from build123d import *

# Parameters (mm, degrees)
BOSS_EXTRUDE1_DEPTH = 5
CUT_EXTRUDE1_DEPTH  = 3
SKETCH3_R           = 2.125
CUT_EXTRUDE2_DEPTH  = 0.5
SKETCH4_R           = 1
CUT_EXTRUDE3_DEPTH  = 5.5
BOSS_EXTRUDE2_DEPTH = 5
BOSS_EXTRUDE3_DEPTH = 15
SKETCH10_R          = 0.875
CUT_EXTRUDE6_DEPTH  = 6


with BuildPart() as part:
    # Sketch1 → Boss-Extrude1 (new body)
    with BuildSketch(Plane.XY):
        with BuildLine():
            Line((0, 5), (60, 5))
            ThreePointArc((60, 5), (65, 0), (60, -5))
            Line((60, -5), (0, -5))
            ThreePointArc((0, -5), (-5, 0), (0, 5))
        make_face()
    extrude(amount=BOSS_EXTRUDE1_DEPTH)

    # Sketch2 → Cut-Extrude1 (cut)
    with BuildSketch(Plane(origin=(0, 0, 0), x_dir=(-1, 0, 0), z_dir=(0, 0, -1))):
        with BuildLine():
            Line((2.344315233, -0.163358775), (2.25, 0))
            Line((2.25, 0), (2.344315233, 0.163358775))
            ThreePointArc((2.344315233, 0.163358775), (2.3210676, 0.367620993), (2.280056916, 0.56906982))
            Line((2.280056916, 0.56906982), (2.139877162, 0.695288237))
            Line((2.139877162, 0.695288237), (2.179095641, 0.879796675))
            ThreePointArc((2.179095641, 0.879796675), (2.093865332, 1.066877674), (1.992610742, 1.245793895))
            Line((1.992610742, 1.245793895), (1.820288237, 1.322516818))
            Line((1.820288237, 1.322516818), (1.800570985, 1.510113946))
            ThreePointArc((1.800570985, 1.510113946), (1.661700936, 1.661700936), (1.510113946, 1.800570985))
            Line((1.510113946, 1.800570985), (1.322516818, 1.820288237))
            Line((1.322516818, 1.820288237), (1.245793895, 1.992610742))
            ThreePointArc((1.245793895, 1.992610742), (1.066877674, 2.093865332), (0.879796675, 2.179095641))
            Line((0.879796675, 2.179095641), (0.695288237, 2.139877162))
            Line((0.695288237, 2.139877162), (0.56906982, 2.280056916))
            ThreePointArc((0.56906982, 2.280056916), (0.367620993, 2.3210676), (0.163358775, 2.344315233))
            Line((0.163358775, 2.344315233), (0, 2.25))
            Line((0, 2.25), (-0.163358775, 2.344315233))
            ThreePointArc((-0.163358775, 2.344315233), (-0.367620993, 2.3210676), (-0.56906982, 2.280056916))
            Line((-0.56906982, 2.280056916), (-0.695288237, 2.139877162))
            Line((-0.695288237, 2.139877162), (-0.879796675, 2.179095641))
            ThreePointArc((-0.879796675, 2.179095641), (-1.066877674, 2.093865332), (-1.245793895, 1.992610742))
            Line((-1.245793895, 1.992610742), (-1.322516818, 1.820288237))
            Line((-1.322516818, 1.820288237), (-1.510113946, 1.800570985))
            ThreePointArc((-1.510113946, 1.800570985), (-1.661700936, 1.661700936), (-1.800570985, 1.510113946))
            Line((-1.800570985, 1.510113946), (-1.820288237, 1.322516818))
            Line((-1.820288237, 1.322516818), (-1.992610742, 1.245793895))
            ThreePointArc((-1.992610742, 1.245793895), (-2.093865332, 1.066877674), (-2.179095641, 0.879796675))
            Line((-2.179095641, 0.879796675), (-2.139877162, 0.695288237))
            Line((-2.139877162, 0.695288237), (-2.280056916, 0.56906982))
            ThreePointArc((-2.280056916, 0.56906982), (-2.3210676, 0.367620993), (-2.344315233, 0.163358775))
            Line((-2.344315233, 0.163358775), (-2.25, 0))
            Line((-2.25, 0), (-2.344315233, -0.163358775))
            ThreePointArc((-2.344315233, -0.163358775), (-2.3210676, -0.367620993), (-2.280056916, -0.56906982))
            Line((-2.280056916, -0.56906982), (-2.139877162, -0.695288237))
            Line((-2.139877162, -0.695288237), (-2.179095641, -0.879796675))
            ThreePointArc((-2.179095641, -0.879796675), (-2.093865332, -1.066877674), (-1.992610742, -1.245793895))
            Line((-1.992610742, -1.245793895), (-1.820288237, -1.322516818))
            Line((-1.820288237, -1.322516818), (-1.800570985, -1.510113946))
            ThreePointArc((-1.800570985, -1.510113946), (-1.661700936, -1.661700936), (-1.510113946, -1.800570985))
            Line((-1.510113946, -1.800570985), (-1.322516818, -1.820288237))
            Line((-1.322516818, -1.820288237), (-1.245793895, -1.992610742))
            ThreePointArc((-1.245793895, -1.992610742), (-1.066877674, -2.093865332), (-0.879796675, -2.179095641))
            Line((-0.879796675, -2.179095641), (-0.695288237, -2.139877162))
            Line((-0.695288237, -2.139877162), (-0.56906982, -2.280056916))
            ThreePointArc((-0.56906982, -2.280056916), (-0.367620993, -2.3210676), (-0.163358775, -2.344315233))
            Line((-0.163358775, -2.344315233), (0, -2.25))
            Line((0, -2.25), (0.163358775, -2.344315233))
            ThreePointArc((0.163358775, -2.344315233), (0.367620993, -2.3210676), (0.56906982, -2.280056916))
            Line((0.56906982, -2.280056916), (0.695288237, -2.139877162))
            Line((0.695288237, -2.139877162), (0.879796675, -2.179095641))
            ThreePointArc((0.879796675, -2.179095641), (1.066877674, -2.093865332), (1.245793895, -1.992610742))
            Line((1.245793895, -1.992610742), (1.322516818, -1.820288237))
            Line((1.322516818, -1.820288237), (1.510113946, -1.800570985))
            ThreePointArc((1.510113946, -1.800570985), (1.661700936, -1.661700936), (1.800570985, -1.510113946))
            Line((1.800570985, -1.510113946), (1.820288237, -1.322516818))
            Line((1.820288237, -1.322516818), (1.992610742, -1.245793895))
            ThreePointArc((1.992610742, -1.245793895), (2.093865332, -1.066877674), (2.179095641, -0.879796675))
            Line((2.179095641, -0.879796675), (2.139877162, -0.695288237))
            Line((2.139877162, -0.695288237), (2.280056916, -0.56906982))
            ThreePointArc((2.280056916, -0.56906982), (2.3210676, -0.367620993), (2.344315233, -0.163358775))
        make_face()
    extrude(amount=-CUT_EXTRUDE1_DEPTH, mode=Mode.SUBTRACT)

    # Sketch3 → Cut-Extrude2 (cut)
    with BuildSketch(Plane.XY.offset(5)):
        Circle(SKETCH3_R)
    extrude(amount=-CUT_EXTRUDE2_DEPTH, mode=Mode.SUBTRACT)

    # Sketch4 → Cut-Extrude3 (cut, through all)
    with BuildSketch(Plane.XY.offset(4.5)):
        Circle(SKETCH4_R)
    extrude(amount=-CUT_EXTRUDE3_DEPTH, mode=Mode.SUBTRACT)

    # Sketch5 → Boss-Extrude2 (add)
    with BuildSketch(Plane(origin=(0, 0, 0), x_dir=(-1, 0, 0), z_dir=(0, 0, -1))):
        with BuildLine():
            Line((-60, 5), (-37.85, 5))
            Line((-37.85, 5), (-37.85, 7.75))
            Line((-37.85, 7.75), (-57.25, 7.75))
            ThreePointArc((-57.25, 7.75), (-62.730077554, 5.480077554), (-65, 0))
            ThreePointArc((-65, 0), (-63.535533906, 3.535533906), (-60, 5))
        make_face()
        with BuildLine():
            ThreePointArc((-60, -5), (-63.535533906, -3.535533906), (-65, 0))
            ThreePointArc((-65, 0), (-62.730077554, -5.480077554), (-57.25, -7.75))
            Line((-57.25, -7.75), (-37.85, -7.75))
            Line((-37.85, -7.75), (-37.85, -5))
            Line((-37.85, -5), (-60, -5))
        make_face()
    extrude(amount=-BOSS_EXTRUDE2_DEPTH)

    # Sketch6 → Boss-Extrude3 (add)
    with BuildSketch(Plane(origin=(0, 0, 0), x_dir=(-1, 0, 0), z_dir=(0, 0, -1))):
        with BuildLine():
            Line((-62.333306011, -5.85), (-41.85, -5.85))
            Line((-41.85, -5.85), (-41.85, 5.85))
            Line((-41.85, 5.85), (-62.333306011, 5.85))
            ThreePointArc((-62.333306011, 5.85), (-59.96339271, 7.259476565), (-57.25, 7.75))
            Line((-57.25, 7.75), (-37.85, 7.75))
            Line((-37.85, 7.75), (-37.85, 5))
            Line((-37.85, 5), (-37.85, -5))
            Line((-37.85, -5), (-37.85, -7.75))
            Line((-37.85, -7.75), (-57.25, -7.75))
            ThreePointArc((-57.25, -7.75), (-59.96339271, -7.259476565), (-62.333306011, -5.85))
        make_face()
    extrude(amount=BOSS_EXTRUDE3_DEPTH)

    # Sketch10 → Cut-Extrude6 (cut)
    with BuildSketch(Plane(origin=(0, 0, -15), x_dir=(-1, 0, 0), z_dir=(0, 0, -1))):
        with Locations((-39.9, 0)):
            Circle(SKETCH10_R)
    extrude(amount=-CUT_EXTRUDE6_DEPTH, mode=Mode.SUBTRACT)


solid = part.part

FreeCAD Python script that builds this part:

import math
import FreeCAD as App
import Part
import Sketcher
from FreeCAD import Vector
Q = App.Units.Quantity

doc = App.newDocument("Part")
body = doc.addObject("PartDesign::Body", "Body")

# Sketch on XY plane
sketch1 = body.newObject("Sketcher::SketchObject", "Sketch")
sketch1.AttachmentSupport = (doc.getObject("XY_Plane"), [""])
sketch1.MapMode = "FlatFace"
sketch1.addGeometry(Part.LineSegment(Vector(60, 5, 0), Vector(0, 5, 0)), False)
sketch1.addGeometry(Part.ArcOfCircle(Part.Circle(Vector(0, 0, 0), Vector(0, 0, 1), 5), math.radians(90), math.radians(270)), False)
sketch1.addGeometry(Part.LineSegment(Vector(0, -5, 0), Vector(60, -5, 0)), False)
sketch1.addGeometry(Part.ArcOfCircle(Part.Circle(Vector(60, 0, 0), Vector(0, 0, 1), 5), math.radians(-90), math.radians(90)), False)
sketch1.addConstraint(Sketcher.Constraint("Tangent", 0, 2, 1, 1))
sketch1.addConstraint(Sketcher.Constraint("Tangent", 1, 2, 2, 1))
sketch1.addConstraint(Sketcher.Constraint("Tangent", 2, 2, 3, 1))
sketch1.addConstraint(Sketcher.Constraint("Tangent", 3, 2, 0, 1))
sketch1.addConstraint(Sketcher.Constraint("Horizontal", 0))
sketch1.addConstraint(Sketcher.Constraint("Horizontal", 2))
sketch1.addConstraint(Sketcher.Constraint("Coincident", 1, 3, -1, 1))
sketch1.addConstraint(Sketcher.Constraint("Radius", 1, Q("5 mm")))
sketch1.addConstraint(Sketcher.Constraint("DistanceX", 0, 2, 0, 1, Q("60 mm")))
pad1 = body.newObject("PartDesign::Pad", "Pad")
pad1.Profile = sketch1
pad1.Length = 5

# Sketch on XY plane
sketch2 = body.newObject("Sketcher::SketchObject", "Sketch001")
sketch2.AttachmentSupport = (doc.getObject("XY_Plane"), [""])
sketch2.MapMode = "FlatFace"
sketch2.addGeometry(Part.LineSegment(Vector(-2.34, -0.16, 0), Vector(-2.25, 0, 0)), False)
sketch2.addGeometry(Part.LineSegment(Vector(-2.25, 0, 0), Vector(-2.34, 0.16, 0)), False)
sketch2.addGeometry(Part.ArcOfCircle(Part.Circle(Vector(0, 0, 0), Vector(0, 0, 1), 2.35), math.radians(165.99), math.radians(176.01)), False)
sketch2.addGeometry(Part.LineSegment(Vector(-2.28, 0.57, 0), Vector(-2.14, 0.7, 0)), False)
sketch2.addGeometry(Part.LineSegment(Vector(-2.14, 0.7, 0), Vector(-2.18, 0.88, 0)), False)
sketch2.addGeometry(Part.ArcOfCircle(Part.Circle(Vector(0, 0, 0), Vector(0, 0, 1), 2.35), math.radians(147.99), math.radians(158.01)), False)
sketch2.addGeometry(Part.LineSegment(Vector(-1.99, 1.25, 0), Vector(-1.82, 1.32, 0)), False)
sketch2.addGeometry(Part.LineSegment(Vector(-1.82, 1.32, 0), Vector(-1.8, 1.51, 0)), False)
sketch2.addGeometry(Part.ArcOfCircle(Part.Circle(Vector(0, 0, 0), Vector(0, 0, 1), 2.35), math.radians(129.99), math.radians(140.01)), False)
sketch2.addGeometry(Part.LineSegment(Vector(-1.51, 1.8, 0), Vector(-1.32, 1.82, 0)), False)
sketch2.addGeometry(Part.LineSegment(Vector(-1.32, 1.82, 0), Vector(-1.25, 1.99, 0)), False)
sketch2.addGeometry(Part.ArcOfCircle(Part.Circle(Vector(0, 0, 0), Vector(0, 0, 1), 2.35), math.radians(111.99), math.radians(122.01)), False)
sketch2.addGeometry(Part.LineSegment(Vector(-0.88, 2.18, 0), Vector(-0.7, 2.14, 0)), False)
sketch2.addGeometry(Part.LineSegment(Vector(-0.7, 2.14, 0), Vector(-0.57, 2.28, 0)), False)
sketch2.addGeometry(Part.ArcOfCircle(Part.Circle(Vector(0, 0, 0), Vector(0, 0, 1), 2.35), math.radians(93.99), math.radians(104.01)), False)
sketch2.addGeometry(Part.LineSegment(Vector(-0.16, 2.34, 0), Vector(0, 2.25, 0)), False)
sketch2.addGeometry(Part.LineSegment(Vector(0, 2.25, 0), Vector(0.16, 2.34, 0)), False)
sketch2.addGeometry(Part.ArcOfCircle(Part.Circle(Vector(0, 0, 0), Vector(0, 0, 1), 2.35), math.radians(75.99), math.radians(86.01)), False)
sketch2.addGeometry(Part.LineSegment(Vector(0.57, 2.28, 0), Vector(0.7, 2.14, 0)), False)
sketch2.addGeometry(Part.LineSegment(Vector(0.7, 2.14, 0), Vector(0.88, 2.18, 0)), False)
sketch2.addGeometry(Part.ArcOfCircle(Part.Circle(Vector(0, 0, 0), Vector(0, 0, 1), 2.35), math.radians(57.99), math.radians(68.01)), False)
sketch2.addGeometry(Part.LineSegment(Vector(1.25, 1.99, 0), Vector(1.32, 1.82, 0)), False)
sketch2.addGeometry(Part.LineSegment(Vector(1.32, 1.82, 0), Vector(1.51, 1.8, 0)), False)
sketch2.addGeometry(Part.ArcOfCircle(Part.Circle(Vector(0, 0, 0), Vector(0, 0, 1), 2.35), math.radians(39.99), math.radians(50.01)), False)
sketch2.addGeometry(Part.LineSegment(Vector(1.8, 1.51, 0), Vector(1.82, 1.32, 0)), False)
sketch2.addGeometry(Part.LineSegment(Vector(1.82, 1.32, 0), Vector(1.99, 1.25, 0)), False)
sketch2.addGeometry(Part.ArcOfCircle(Part.Circle(Vector(0, 0, 0), Vector(0, 0, 1), 2.35), math.radians(21.99), math.radians(32.01)), False)
sketch2.addGeometry(Part.LineSegment(Vector(2.18, 0.88, 0), Vector(2.14, 0.7, 0)), False)
sketch2.addGeometry(Part.LineSegment(Vector(2.14, 0.7, 0), Vector(2.28, 0.57, 0)), False)
sketch2.addGeometry(Part.ArcOfCircle(Part.Circle(Vector(0, 0, 0), Vector(0, 0, 1), 2.35), math.radians(3.99), math.radians(14.01)), False)
sketch2.addGeometry(Part.LineSegment(Vector(2.34, 0.16, 0), Vector(2.25, 0, 0)), False)
sketch2.addGeometry(Part.LineSegment(Vector(2.25, 0, 0), Vector(2.34, -0.16, 0)), False)
sketch2.addGeometry(Part.ArcOfCircle(Part.Circle(Vector(0, 0, 0), Vector(0, 0, 1), 2.35), math.radians(-14.01), math.radians(-3.99)), False)
sketch2.addGeometry(Part.LineSegment(Vector(2.28, -0.57, 0), Vector(2.14, -0.7, 0)), False)
sketch2.addGeometry(Part.LineSegment(Vector(2.14, -0.7, 0), Vector(2.18, -0.88, 0)), False)
sketch2.addGeometry(Part.ArcOfCircle(Part.Circle(Vector(0, 0, 0), Vector(0, 0, 1), 2.35), math.radians(-32.01), math.radians(-21.99)), False)
sketch2.addGeometry(Part.LineSegment(Vector(1.99, -1.25, 0), Vector(1.82, -1.32, 0)), False)
sketch2.addGeometry(Part.LineSegment(Vector(1.82, -1.32, 0), Vector(1.8, -1.51, 0)), False)
sketch2.addGeometry(Part.ArcOfCircle(Part.Circle(Vector(0, 0, 0), Vector(0, 0, 1), 2.35), math.radians(-50.01), math.radians(-39.99)), False)
sketch2.addGeometry(Part.LineSegment(Vector(1.51, -1.8, 0), Vector(1.32, -1.82, 0)), False)
sketch2.addGeometry(Part.LineSegment(Vector(1.32, -1.82, 0), Vector(1.25, -1.99, 0)), False)
sketch2.addGeometry(Part.ArcOfCircle(Part.Circle(Vector(0, 0, 0), Vector(0, 0, 1), 2.35), math.radians(-68.01), math.radians(-57.99)), False)
sketch2.addGeometry(Part.LineSegment(Vector(0.88, -2.18, 0), Vector(0.7, -2.14, 0)), False)
sketch2.addGeometry(Part.LineSegment(Vector(0.7, -2.14, 0), Vector(0.57, -2.28, 0)), False)
sketch2.addGeometry(Part.ArcOfCircle(Part.Circle(Vector(0, 0, 0), Vector(0, 0, 1), 2.35), math.radians(-86.01), math.radians(-75.99)), False)
sketch2.addGeometry(Part.LineSegment(Vector(0.16, -2.34, 0), Vector(0, -2.25, 0)), False)
sketch2.addGeometry(Part.LineSegment(Vector(0, -2.25, 0), Vector(-0.16, -2.34, 0)), False)
sketch2.addGeometry(Part.ArcOfCircle(Part.Circle(Vector(0, 0, 0), Vector(0, 0, 1), 2.35), math.radians(-104.01), math.radians(-93.99)), False)
sketch2.addGeometry(Part.LineSegment(Vector(-0.57, -2.28, 0), Vector(-0.7, -2.14, 0)), False)
sketch2.addGeometry(Part.LineSegment(Vector(-0.7, -2.14, 0), Vector(-0.88, -2.18, 0)), False)
sketch2.addGeometry(Part.ArcOfCircle(Part.Circle(Vector(0, 0, 0), Vector(0, 0, 1), 2.35), math.radians(-122.01), math.radians(-111.99)), False)
sketch2.addGeometry(Part.LineSegment(Vector(-1.25, -1.99, 0), Vector(-1.32, -1.82, 0)), False)
sketch2.addGeometry(Part.LineSegment(Vector(-1.32, -1.82, 0), Vector(-1.51, -1.8, 0)), False)
sketch2.addGeometry(Part.ArcOfCircle(Part.Circle(Vector(0, 0, 0), Vector(0, 0, 1), 2.35), math.radians(-140.01), math.radians(-129.99)), False)
sketch2.addGeometry(Part.LineSegment(Vector(-1.8, -1.51, 0), Vector(-1.82, -1.32, 0)), False)
sketch2.addGeometry(Part.LineSegment(Vector(-1.82, -1.32, 0), Vector(-1.99, -1.25, 0)), False)
sketch2.addGeometry(Part.ArcOfCircle(Part.Circle(Vector(0, 0, 0), Vector(0, 0, 1), 2.35), math.radians(-158.01), math.radians(-147.99)), False)
sketch2.addGeometry(Part.LineSegment(Vector(-2.18, -0.88, 0), Vector(-2.14, -0.7, 0)), False)
sketch2.addGeometry(Part.LineSegment(Vector(-2.14, -0.7, 0), Vector(-2.28, -0.57, 0)), False)
sketch2.addGeometry(Part.ArcOfCircle(Part.Circle(Vector(0, 0, 0), Vector(0, 0, 1), 2.35), math.radians(-176.01), math.radians(-165.99)), False)
sketch2.addConstraint(Sketcher.Constraint("Coincident", 0, 2, 1, 1))
sketch2.addConstraint(Sketcher.Constraint("Coincident", 1, 2, 2, 2))
sketch2.addConstraint(Sketcher.Constraint("Coincident", 2, 1, 3, 1))
sketch2.addConstraint(Sketcher.Constraint("Coincident", 3, 2, 4, 1))
sketch2.addConstraint(Sketcher.Constraint("Coincident", 4, 2, 5, 2))
sketch2.addConstraint(Sketcher.Constraint("Coincident", 5, 1, 6, 1))
sketch2.addConstraint(Sketcher.Constraint("Coincident", 6, 2, 7, 1))
sketch2.addConstraint(Sketcher.Constraint("Coincident", 7, 2, 8, 2))
sketch2.addConstraint(Sketcher.Constraint("Coincident", 8, 1, 9, 1))
sketch2.addConstraint(Sketcher.Constraint("Coincident", 9, 2, 10, 1))
sketch2.addConstraint(Sketcher.Constraint("Coincident", 10, 2, 11, 2))
sketch2.addConstraint(Sketcher.Constraint("Coincident", 11, 1, 12, 1))
sketch2.addConstraint(Sketcher.Constraint("Coincident", 12, 2, 13, 1))
sketch2.addConstraint(Sketcher.Constraint("Coincident", 13, 2, 14, 2))
sketch2.addConstraint(Sketcher.Constraint("Coincident", 14, 1, 15, 1))
sketch2.addConstraint(Sketcher.Constraint("Coincident", 15, 2, 16, 1))
sketch2.addConstraint(Sketcher.Constraint("Coincident", 16, 2, 17, 2))
sketch2.addConstraint(Sketcher.Constraint("Coincident", 17, 1, 18, 1))
sketch2.addConstraint(Sketcher.Constraint("Coincident", 18, 2, 19, 1))
sketch2.addConstraint(Sketcher.Constraint("Coincident", 19, 2, 20, 2))
sketch2.addConstraint(Sketcher.Constraint("Coincident", 20, 1, 21, 1))
sketch2.addConstraint(Sketcher.Constraint("Coincident", 21, 2, 22, 1))
sketch2.addConstraint(Sketcher.Constraint("Coincident", 22, 2, 23, 2))
sketch2.addConstraint(Sketcher.Constraint("Coincident", 23, 1, 24, 1))
sketch2.addConstraint(Sketcher.Constraint("Coincident", 24, 2, 25, 1))
sketch2.addConstraint(Sketcher.Constraint("Coincident", 25, 2, 26, 2))
sketch2.addConstraint(Sketcher.Constraint("Coincident", 26, 1, 27, 1))
sketch2.addConstraint(Sketcher.Constraint("Coincident", 27, 2, 28, 1))
sketch2.addConstraint(Sketcher.Constraint("Coincident", 28, 2, 29, 2))
sketch2.addConstraint(Sketcher.Constraint("Coincident", 29, 1, 30, 1))
sketch2.addConstraint(Sketcher.Constraint("Coincident", 30, 2, 31, 1))
sketch2.addConstraint(Sketcher.Constraint("Coincident", 31, 2, 32, 2))
sketch2.addConstraint(Sketcher.Constraint("Coincident", 32, 1, 33, 1))
sketch2.addConstraint(Sketcher.Constraint("Coincident", 33, 2, 34, 1))
sketch2.addConstraint(Sketcher.Constraint("Coincident", 34, 2, 35, 2))
sketch2.addConstraint(Sketcher.Constraint("Coincident", 35, 1, 36, 1))
sketch2.addConstraint(Sketcher.Constraint("Coincident", 36, 2, 37, 1))
sketch2.addConstraint(Sketcher.Constraint("Coincident", 37, 2, 38, 2))
sketch2.addConstraint(Sketcher.Constraint("Coincident", 38, 1, 39, 1))
sketch2.addConstraint(Sketcher.Constraint("Coincident", 39, 2, 40, 1))
sketch2.addConstraint(Sketcher.Constraint("Coincident", 40, 2, 41, 2))
sketch2.addConstraint(Sketcher.Constraint("Coincident", 41, 1, 42, 1))
sketch2.addConstraint(Sketcher.Constraint("Coincident", 42, 2, 43, 1))
sketch2.addConstraint(Sketcher.Constraint("Coincident", 43, 2, 44, 2))
sketch2.addConstraint(Sketcher.Constraint("Coincident", 44, 1, 45, 1))
sketch2.addConstraint(Sketcher.Constraint("Coincident", 45, 2, 46, 1))
sketch2.addConstraint(Sketcher.Constraint("Coincident", 46, 2, 47, 2))
sketch2.addConstraint(Sketcher.Constraint("Coincident", 47, 1, 48, 1))
sketch2.addConstraint(Sketcher.Constraint("Coincident", 48, 2, 49, 1))
sketch2.addConstraint(Sketcher.Constraint("Coincident", 49, 2, 50, 2))
sketch2.addConstraint(Sketcher.Constraint("Coincident", 50, 1, 51, 1))
sketch2.addConstraint(Sketcher.Constraint("Coincident", 51, 2, 52, 1))
sketch2.addConstraint(Sketcher.Constraint("Coincident", 52, 2, 53, 2))
sketch2.addConstraint(Sketcher.Constraint("Coincident", 53, 1, 54, 1))
sketch2.addConstraint(Sketcher.Constraint("Coincident", 54, 2, 55, 1))
sketch2.addConstraint(Sketcher.Constraint("Coincident", 55, 2, 56, 2))
sketch2.addConstraint(Sketcher.Constraint("Coincident", 56, 1, 57, 1))
sketch2.addConstraint(Sketcher.Constraint("Coincident", 57, 2, 58, 1))
sketch2.addConstraint(Sketcher.Constraint("Coincident", 58, 2, 59, 2))
sketch2.addConstraint(Sketcher.Constraint("Coincident", 59, 1, 0, 1))
sketch2.addConstraint(Sketcher.Constraint("Coincident", 2, 3, -1, 1))
sketch2.addConstraint(Sketcher.Constraint("Coincident", 5, 3, -1, 1))
sketch2.addConstraint(Sketcher.Constraint("Coincident", 8, 3, -1, 1))
sketch2.addConstraint(Sketcher.Constraint("Coincident", 11, 3, -1, 1))
sketch2.addConstraint(Sketcher.Constraint("Coincident", 14, 3, -1, 1))
sketch2.addConstraint(Sketcher.Constraint("Coincident", 17, 3, -1, 1))
sketch2.addConstraint(Sketcher.Constraint("Coincident", 20, 3, -1, 1))
sketch2.addConstraint(Sketcher.Constraint("Coincident", 23, 3, -1, 1))
sketch2.addConstraint(Sketcher.Constraint("Coincident", 26, 3, -1, 1))
sketch2.addConstraint(Sketcher.Constraint("Coincident", 29, 3, -1, 1))
sketch2.addConstraint(Sketcher.Constraint("Coincident", 32, 3, -1, 1))
sketch2.addConstraint(Sketcher.Constraint("Coincident", 35, 3, -1, 1))
sketch2.addConstraint(Sketcher.Constraint("Coincident", 38, 3, -1, 1))
sketch2.addConstraint(Sketcher.Constraint("Coincident", 41, 3, -1, 1))
sketch2.addConstraint(Sketcher.Constraint("Coincident", 44, 3, -1, 1))
sketch2.addConstraint(Sketcher.Constraint("Coincident", 47, 3, -1, 1))
sketch2.addConstraint(Sketcher.Constraint("Coincident", 50, 3, -1, 1))
sketch2.addConstraint(Sketcher.Constraint("Coincident", 53, 3, -1, 1))
sketch2.addConstraint(Sketcher.Constraint("Coincident", 56, 3, -1, 1))
sketch2.addConstraint(Sketcher.Constraint("Coincident", 59, 3, -1, 1))
sketch2.addConstraint(Sketcher.Constraint("Equal", 2, 5))
sketch2.addConstraint(Sketcher.Constraint("Equal", 5, 8))
sketch2.addConstraint(Sketcher.Constraint("Equal", 8, 11))
sketch2.addConstraint(Sketcher.Constraint("Equal", 11, 14))
sketch2.addConstraint(Sketcher.Constraint("Equal", 14, 17))
sketch2.addConstraint(Sketcher.Constraint("Equal", 17, 20))
sketch2.addConstraint(Sketcher.Constraint("Equal", 20, 23))
sketch2.addConstraint(Sketcher.Constraint("Equal", 23, 26))
sketch2.addConstraint(Sketcher.Constraint("Equal", 26, 29))
sketch2.addConstraint(Sketcher.Constraint("Equal", 29, 32))
sketch2.addConstraint(Sketcher.Constraint("Equal", 32, 35))
sketch2.addConstraint(Sketcher.Constraint("Equal", 35, 38))
sketch2.addConstraint(Sketcher.Constraint("Equal", 38, 41))
sketch2.addConstraint(Sketcher.Constraint("Equal", 41, 44))
sketch2.addConstraint(Sketcher.Constraint("Equal", 44, 47))
sketch2.addConstraint(Sketcher.Constraint("Equal", 47, 50))
sketch2.addConstraint(Sketcher.Constraint("Equal", 50, 53))
sketch2.addConstraint(Sketcher.Constraint("Equal", 53, 56))
sketch2.addConstraint(Sketcher.Constraint("Equal", 56, 59))
sketch2.addConstraint(Sketcher.Constraint("Symmetric", 0, 2, 30, 2, -1, 1))
sketch2.addConstraint(Sketcher.Constraint("Symmetric", 3, 2, 33, 2, -1, 1))
sketch2.addConstraint(Sketcher.Constraint("Symmetric", 6, 2, 36, 2, -1, 1))
sketch2.addConstraint(Sketcher.Constraint("Symmetric", 9, 2, 39, 2, -1, 1))
sketch2.addConstraint(Sketcher.Constraint("Symmetric", 12, 2, 42, 2, -1, 1))
sketch2.addConstraint(Sketcher.Constraint("Symmetric", 15, 2, 45, 2, -1, 1))
sketch2.addConstraint(Sketcher.Constraint("Symmetric", 18, 2, 48, 2, -1, 1))
sketch2.addConstraint(Sketcher.Constraint("Symmetric", 21, 2, 51, 2, -1, 1))
sketch2.addConstraint(Sketcher.Constraint("Symmetric", 24, 2, 54, 2, -1, 1))
sketch2.addConstraint(Sketcher.Constraint("Symmetric", 27, 2, 57, 2, -1, 1))
sketch2.addConstraint(Sketcher.Constraint("Symmetric", 12, 2, 18, 2, -2))
sketch2.addConstraint(Sketcher.Constraint("Symmetric", 9, 2, 21, 2, -2))
sketch2.addConstraint(Sketcher.Constraint("Symmetric", 6, 2, 24, 2, -2))
sketch2.addConstraint(Sketcher.Constraint("Symmetric", 3, 2, 27, 2, -2))
sketch2.addConstraint(Sketcher.Constraint("PointOnObject", 0, 2, -1))
sketch2.addConstraint(Sketcher.Constraint("PointOnObject", 15, 2, -2))
sketch2.addConstraint(Sketcher.Constraint("Perpendicular", 0, 15))
sketch2.addConstraint(Sketcher.Constraint("Perpendicular", 1, 16))
sketch2.addConstraint(Sketcher.Constraint("Perpendicular", 3, 18))
sketch2.addConstraint(Sketcher.Constraint("Perpendicular", 4, 19))
sketch2.addConstraint(Sketcher.Constraint("Perpendicular", 6, 21))
sketch2.addConstraint(Sketcher.Constraint("Perpendicular", 7, 22))
sketch2.addConstraint(Sketcher.Constraint("Perpendicular", 9, 24))
sketch2.addConstraint(Sketcher.Constraint("Perpendicular", 10, 25))
sketch2.addConstraint(Sketcher.Constraint("Perpendicular", 12, 27))
sketch2.addConstraint(Sketcher.Constraint("Perpendicular", 13, 28))
sketch2.addConstraint(Sketcher.Constraint("Perpendicular", 15, 30))
sketch2.addConstraint(Sketcher.Constraint("Perpendicular", 16, 31))
sketch2.addConstraint(Sketcher.Constraint("Perpendicular", 18, 33))
sketch2.addConstraint(Sketcher.Constraint("Perpendicular", 19, 34))
sketch2.addConstraint(Sketcher.Constraint("Perpendicular", 21, 36))
sketch2.addConstraint(Sketcher.Constraint("Perpendicular", 22, 37))
sketch2.addConstraint(Sketcher.Constraint("Perpendicular", 24, 39))
sketch2.addConstraint(Sketcher.Constraint("Perpendicular", 25, 40))
sketch2.addConstraint(Sketcher.Constraint("Perpendicular", 27, 42))
sketch2.addConstraint(Sketcher.Constraint("Perpendicular", 28, 43))
sketch2.addConstraint(Sketcher.Constraint("Perpendicular", 30, 45))
sketch2.addConstraint(Sketcher.Constraint("Perpendicular", 31, 46))
sketch2.addConstraint(Sketcher.Constraint("Perpendicular", 33, 48))
sketch2.addConstraint(Sketcher.Constraint("Perpendicular", 34, 49))
sketch2.addConstraint(Sketcher.Constraint("Perpendicular", 36, 51))
sketch2.addConstraint(Sketcher.Constraint("Perpendicular", 37, 52))
sketch2.addConstraint(Sketcher.Constraint("Perpendicular", 39, 54))
sketch2.addConstraint(Sketcher.Constraint("Perpendicular", 40, 55))
sketch2.addConstraint(Sketcher.Constraint("Perpendicular", 42, 57))
sketch2.addConstraint(Sketcher.Constraint("Perpendicular", 43, 58))
sketch2.addConstraint(Sketcher.Constraint("Horizontal", 14, 1, 16, 2))
sketch2.addConstraint(Sketcher.Constraint("Horizontal", 13, 2, 17, 1))
sketch2.addConstraint(Sketcher.Constraint("Horizontal", 11, 1, 19, 2))
sketch2.addConstraint(Sketcher.Constraint("Horizontal", 10, 2, 20, 1))
sketch2.addConstraint(Sketcher.Constraint("Horizontal", 8, 1, 22, 2))
sketch2.addConstraint(Sketcher.Constraint("Equal", 1, 3))
sketch2.addConstraint(Sketcher.Constraint("Equal", 3, 4))
sketch2.addConstraint(Sketcher.Constraint("Equal", 4, 6))
sketch2.addConstraint(Sketcher.Constraint("Equal", 6, 7))
sketch2.addConstraint(Sketcher.Constraint("Equal", 7, 9))
sketch2.addConstraint(Sketcher.Constraint("Equal", 9, 10))
sketch2.addConstraint(Sketcher.Constraint("Equal", 10, 12))
sketch2.addConstraint(Sketcher.Constraint("Equal", 12, 13))
sketch2.addConstraint(Sketcher.Constraint("Equal", 13, 15))
sketch2.addConstraint(Sketcher.Constraint("Angle", 0, Q("60 deg")))
sketch2.addConstraint(Sketcher.Constraint("Angle", 3, Q("42 deg")))
sketch2.addConstraint(Sketcher.Constraint("Angle", 4, Q("102 deg")))
sketch2.addConstraint(Sketcher.Constraint("Angle", 6, Q("24 deg")))
sketch2.addConstraint(Sketcher.Constraint("Angle", 7, Q("84 deg")))
sketch2.addConstraint(Sketcher.Constraint("Radius", 2, Q("2.35 mm")))
sketch2.addConstraint(Sketcher.Constraint("DistanceX", 0, 2, -1, 1, Q("2.25 mm")))
pocket1 = body.newObject("PartDesign::Pocket", "Pocket")
pocket1.Profile = sketch2
pocket1.Length = 3
pocket1.Reversed = True

# Sketch on XY plane
sketch3 = body.newObject("Sketcher::SketchObject", "Sketch002")
sketch3.AttachmentSupport = (doc.getObject("XY_Plane"), [""])
sketch3.MapMode = "FlatFace"
sketch3.AttachmentOffset = App.Placement(Vector(0, 0, 5), App.Rotation())
sketch3.addGeometry(Part.Circle(Vector(0, 0, 0), Vector(0, 0, 1), 2.1), False)
sketch3.addConstraint(Sketcher.Constraint("Coincident", 0, 3, -1, 1))
sketch3.addConstraint(Sketcher.Constraint("Diameter", 0, Q("4.25 mm")))
pocket2 = body.newObject("PartDesign::Pocket", "Pocket001")
pocket2.Profile = sketch3
pocket2.Length = 0.5

# Sketch on XY plane
sketch4 = body.newObject("Sketcher::SketchObject", "Sketch003")
sketch4.AttachmentSupport = (doc.getObject("XY_Plane"), [""])
sketch4.MapMode = "FlatFace"
sketch4.AttachmentOffset = App.Placement(Vector(0, 0, 4.5), App.Rotation())
sketch4.addGeometry(Part.Circle(Vector(0, 0, 0), Vector(0, 0, 1), 1), False)
sketch4.addConstraint(Sketcher.Constraint("Coincident", 0, 3, -1, 1))
sketch4.addConstraint(Sketcher.Constraint("Diameter", 0, Q("2 mm")))
pocket3 = body.newObject("PartDesign::Pocket", "Pocket002")
pocket3.Profile = sketch4
pocket3.Type = "ThroughAll"

# Sketch on XY plane
sketch5 = body.newObject("Sketcher::SketchObject", "Sketch004")
sketch5.AttachmentSupport = (doc.getObject("XY_Plane"), [""])
sketch5.MapMode = "FlatFace"
sketch5.addGeometry(Part.LineSegment(Vector(60, 5, 0), Vector(37.9, 5, 0)), False)
sketch5.addGeometry(Part.LineSegment(Vector(37.9, 5, 0), Vector(37.9, 7.8, 0)), False)
sketch5.addGeometry(Part.LineSegment(Vector(37.9, 7.8, 0), Vector(57.2, 7.8, 0)), False)
sketch5.addGeometry(Part.ArcOfCircle(Part.Circle(Vector(57.2, 0, 0), Vector(0, 0, 1), 7.8), math.radians(0), math.radians(90)), False)
sketch5.addGeometry(Part.ArcOfCircle(Part.Circle(Vector(60, 0, 0), Vector(0, 0, 1), 5), math.radians(0), math.radians(90)), False)
sketch5.addGeometry(Part.ArcOfCircle(Part.Circle(Vector(60, 0, 0), Vector(0, 0, 1), 5), math.radians(-90), math.radians(0)), False)
sketch5.addGeometry(Part.ArcOfCircle(Part.Circle(Vector(57.2, 0, 0), Vector(0, 0, 1), 7.8), math.radians(-90), math.radians(0)), False)
sketch5.addGeometry(Part.LineSegment(Vector(57.2, -7.8, 0), Vector(37.9, -7.8, 0)), False)
sketch5.addGeometry(Part.LineSegment(Vector(37.9, -7.8, 0), Vector(37.9, -5, 0)), False)
sketch5.addGeometry(Part.LineSegment(Vector(37.9, -5, 0), Vector(60, -5, 0)), False)
sketch5.addConstraint(Sketcher.Constraint("Coincident", 0, 2, 1, 1))
sketch5.addConstraint(Sketcher.Constraint("Coincident", 1, 2, 2, 1))
sketch5.addConstraint(Sketcher.Constraint("Tangent", 2, 2, 3, 2))
sketch5.addConstraint(Sketcher.Constraint("Tangent", 3, 1, 4, 1))
sketch5.addConstraint(Sketcher.Constraint("Tangent", 4, 2, 0, 1))
sketch5.addConstraint(Sketcher.Constraint("Tangent", 5, 2, 6, 2))
sketch5.addConstraint(Sketcher.Constraint("Tangent", 6, 1, 7, 1))
sketch5.addConstraint(Sketcher.Constraint("Coincident", 7, 2, 8, 1))
sketch5.addConstraint(Sketcher.Constraint("Coincident", 8, 2, 9, 1))
sketch5.addConstraint(Sketcher.Constraint("Tangent", 9, 2, 5, 1))
sketch5.addConstraint(Sketcher.Constraint("Horizontal", 0))
sketch5.addConstraint(Sketcher.Constraint("Vertical", 1))
sketch5.addConstraint(Sketcher.Constraint("Horizontal", 2))
sketch5.addConstraint(Sketcher.Constraint("Horizontal", 7))
sketch5.addConstraint(Sketcher.Constraint("Vertical", 8))
sketch5.addConstraint(Sketcher.Constraint("Horizontal", 9))
sketch5.addConstraint(Sketcher.Constraint("Coincident", 5, 3, 4, 3))
sketch5.addConstraint(Sketcher.Constraint("Coincident", 6, 3, 3, 3))
sketch5.addConstraint(Sketcher.Constraint("Equal", 4, 5))
sketch5.addConstraint(Sketcher.Constraint("Symmetric", 1, 2, 7, 2, -1))
sketch5.addConstraint(Sketcher.Constraint("PointOnObject", 4, 3, -1))
sketch5.addConstraint(Sketcher.Constraint("Radius", 4, Q("5 mm")))
sketch5.addConstraint(Sketcher.Constraint("Radius", 3, Q("7.75 mm")))
sketch5.addConstraint(Sketcher.Constraint("DistanceX", 2, 1, 2, 2, Q("19.4 mm")))
sketch5.addConstraint(Sketcher.Constraint("DistanceX", -1, 1, 4, 3, Q("60 mm")))
pad2 = body.newObject("PartDesign::Pad", "Pad001")
pad2.Profile = sketch5
pad2.Length = 5

# Sketch on XY plane
sketch6 = body.newObject("Sketcher::SketchObject", "Sketch005")
sketch6.AttachmentSupport = (doc.getObject("XY_Plane"), [""])
sketch6.MapMode = "FlatFace"
sketch6.addGeometry(Part.LineSegment(Vector(42, -6, 0), Vector(62, -6, 0)), False)
sketch6.addGeometry(Part.ArcOfCircle(Part.Circle(Vector(57, 0, 0), Vector(0, 0, 1), 8), math.radians(-90), math.radians(-49)), False)
sketch6.addGeometry(Part.LineSegment(Vector(57, -8, 0), Vector(38, -8, 0)), False)
sketch6.addGeometry(Part.LineSegment(Vector(38, -8, 0), Vector(38, 8, 0)), False)
sketch6.addGeometry(Part.LineSegment(Vector(38, 8, 0), Vector(57, 8, 0)), False)
sketch6.addGeometry(Part.ArcOfCircle(Part.Circle(Vector(57, 0, 0), Vector(0, 0, 1), 8), math.radians(49), math.radians(90)), False)
sketch6.addGeometry(Part.LineSegment(Vector(62, 6, 0), Vector(42, 6, 0)), False)
sketch6.addGeometry(Part.LineSegment(Vector(42, 6, 0), Vector(42, -6, 0)), False)
sketch6.addConstraint(Sketcher.Constraint("Coincident", 0, 2, 1, 2))
sketch6.addConstraint(Sketcher.Constraint("Tangent", 1, 1, 2, 1))
sketch6.addConstraint(Sketcher.Constraint("Coincident", 2, 2, 3, 1))
sketch6.addConstraint(Sketcher.Constraint("Coincident", 3, 2, 4, 1))
sketch6.addConstraint(Sketcher.Constraint("Tangent", 4, 2, 5, 2))
sketch6.addConstraint(Sketcher.Constraint("Coincident", 5, 1, 6, 1))
sketch6.addConstraint(Sketcher.Constraint("Coincident", 6, 2, 7, 1))
sketch6.addConstraint(Sketcher.Constraint("Coincident", 7, 2, 0, 1))
sketch6.addConstraint(Sketcher.Constraint("Horizontal", 0))
sketch6.addConstraint(Sketcher.Constraint("Horizontal", 2))
sketch6.addConstraint(Sketcher.Constraint("Vertical", 3))
sketch6.addConstraint(Sketcher.Constraint("Horizontal", 4))
sketch6.addConstraint(Sketcher.Constraint("Horizontal", 6))
sketch6.addConstraint(Sketcher.Constraint("Vertical", 7))
sketch6.addConstraint(Sketcher.Constraint("Coincident", 5, 3, 1, 3))
sketch6.addConstraint(Sketcher.Constraint("Equal", 1, 5))
sketch6.addConstraint(Sketcher.Constraint("Symmetric", 0, 2, 5, 1, -1))
sketch6.addConstraint(Sketcher.Constraint("Radius", 1, Q("7.75 mm")))
sketch6.addConstraint(Sketcher.Constraint("DistanceX", 2, 2, 2, 1, Q("19.4 mm")))
sketch6.addConstraint(Sketcher.Constraint("DistanceY", 7, 2, 7, 1, Q("11.7 mm")))
sketch6.addConstraint(Sketcher.Constraint("DistanceX", 3, 2, 6, 2, Q("4 mm")))
sketch6.addConstraint(Sketcher.Constraint("DistanceX", -1, 1, 1, 3, Q("57.25 mm")))
pad3 = body.newObject("PartDesign::Pad", "Pad002")
pad3.Profile = sketch6
pad3.Length = 15
pad3.Reversed = True

# Sketch on XY plane
sketch7 = body.newObject("Sketcher::SketchObject", "Sketch006")
sketch7.AttachmentSupport = (doc.getObject("XY_Plane"), [""])
sketch7.MapMode = "FlatFace"
sketch7.AttachmentOffset = App.Placement(Vector(0, 0, -15), App.Rotation())
sketch7.addGeometry(Part.Circle(Vector(39.9, 0, 0), Vector(0, 0, 1), 0.9), False)
sketch7.addConstraint(Sketcher.Constraint("PointOnObject", 0, 3, -1))
sketch7.addConstraint(Sketcher.Constraint("Diameter", 0, Q("1.75 mm")))
sketch7.addConstraint(Sketcher.Constraint("DistanceX", -1, 1, 0, 3, Q("39.9 mm")))
pocket4 = body.newObject("PartDesign::Pocket", "Pocket003")
pocket4.Profile = sketch7
pocket4.Length = 6
pocket4.Reversed = True

doc.recompute()
